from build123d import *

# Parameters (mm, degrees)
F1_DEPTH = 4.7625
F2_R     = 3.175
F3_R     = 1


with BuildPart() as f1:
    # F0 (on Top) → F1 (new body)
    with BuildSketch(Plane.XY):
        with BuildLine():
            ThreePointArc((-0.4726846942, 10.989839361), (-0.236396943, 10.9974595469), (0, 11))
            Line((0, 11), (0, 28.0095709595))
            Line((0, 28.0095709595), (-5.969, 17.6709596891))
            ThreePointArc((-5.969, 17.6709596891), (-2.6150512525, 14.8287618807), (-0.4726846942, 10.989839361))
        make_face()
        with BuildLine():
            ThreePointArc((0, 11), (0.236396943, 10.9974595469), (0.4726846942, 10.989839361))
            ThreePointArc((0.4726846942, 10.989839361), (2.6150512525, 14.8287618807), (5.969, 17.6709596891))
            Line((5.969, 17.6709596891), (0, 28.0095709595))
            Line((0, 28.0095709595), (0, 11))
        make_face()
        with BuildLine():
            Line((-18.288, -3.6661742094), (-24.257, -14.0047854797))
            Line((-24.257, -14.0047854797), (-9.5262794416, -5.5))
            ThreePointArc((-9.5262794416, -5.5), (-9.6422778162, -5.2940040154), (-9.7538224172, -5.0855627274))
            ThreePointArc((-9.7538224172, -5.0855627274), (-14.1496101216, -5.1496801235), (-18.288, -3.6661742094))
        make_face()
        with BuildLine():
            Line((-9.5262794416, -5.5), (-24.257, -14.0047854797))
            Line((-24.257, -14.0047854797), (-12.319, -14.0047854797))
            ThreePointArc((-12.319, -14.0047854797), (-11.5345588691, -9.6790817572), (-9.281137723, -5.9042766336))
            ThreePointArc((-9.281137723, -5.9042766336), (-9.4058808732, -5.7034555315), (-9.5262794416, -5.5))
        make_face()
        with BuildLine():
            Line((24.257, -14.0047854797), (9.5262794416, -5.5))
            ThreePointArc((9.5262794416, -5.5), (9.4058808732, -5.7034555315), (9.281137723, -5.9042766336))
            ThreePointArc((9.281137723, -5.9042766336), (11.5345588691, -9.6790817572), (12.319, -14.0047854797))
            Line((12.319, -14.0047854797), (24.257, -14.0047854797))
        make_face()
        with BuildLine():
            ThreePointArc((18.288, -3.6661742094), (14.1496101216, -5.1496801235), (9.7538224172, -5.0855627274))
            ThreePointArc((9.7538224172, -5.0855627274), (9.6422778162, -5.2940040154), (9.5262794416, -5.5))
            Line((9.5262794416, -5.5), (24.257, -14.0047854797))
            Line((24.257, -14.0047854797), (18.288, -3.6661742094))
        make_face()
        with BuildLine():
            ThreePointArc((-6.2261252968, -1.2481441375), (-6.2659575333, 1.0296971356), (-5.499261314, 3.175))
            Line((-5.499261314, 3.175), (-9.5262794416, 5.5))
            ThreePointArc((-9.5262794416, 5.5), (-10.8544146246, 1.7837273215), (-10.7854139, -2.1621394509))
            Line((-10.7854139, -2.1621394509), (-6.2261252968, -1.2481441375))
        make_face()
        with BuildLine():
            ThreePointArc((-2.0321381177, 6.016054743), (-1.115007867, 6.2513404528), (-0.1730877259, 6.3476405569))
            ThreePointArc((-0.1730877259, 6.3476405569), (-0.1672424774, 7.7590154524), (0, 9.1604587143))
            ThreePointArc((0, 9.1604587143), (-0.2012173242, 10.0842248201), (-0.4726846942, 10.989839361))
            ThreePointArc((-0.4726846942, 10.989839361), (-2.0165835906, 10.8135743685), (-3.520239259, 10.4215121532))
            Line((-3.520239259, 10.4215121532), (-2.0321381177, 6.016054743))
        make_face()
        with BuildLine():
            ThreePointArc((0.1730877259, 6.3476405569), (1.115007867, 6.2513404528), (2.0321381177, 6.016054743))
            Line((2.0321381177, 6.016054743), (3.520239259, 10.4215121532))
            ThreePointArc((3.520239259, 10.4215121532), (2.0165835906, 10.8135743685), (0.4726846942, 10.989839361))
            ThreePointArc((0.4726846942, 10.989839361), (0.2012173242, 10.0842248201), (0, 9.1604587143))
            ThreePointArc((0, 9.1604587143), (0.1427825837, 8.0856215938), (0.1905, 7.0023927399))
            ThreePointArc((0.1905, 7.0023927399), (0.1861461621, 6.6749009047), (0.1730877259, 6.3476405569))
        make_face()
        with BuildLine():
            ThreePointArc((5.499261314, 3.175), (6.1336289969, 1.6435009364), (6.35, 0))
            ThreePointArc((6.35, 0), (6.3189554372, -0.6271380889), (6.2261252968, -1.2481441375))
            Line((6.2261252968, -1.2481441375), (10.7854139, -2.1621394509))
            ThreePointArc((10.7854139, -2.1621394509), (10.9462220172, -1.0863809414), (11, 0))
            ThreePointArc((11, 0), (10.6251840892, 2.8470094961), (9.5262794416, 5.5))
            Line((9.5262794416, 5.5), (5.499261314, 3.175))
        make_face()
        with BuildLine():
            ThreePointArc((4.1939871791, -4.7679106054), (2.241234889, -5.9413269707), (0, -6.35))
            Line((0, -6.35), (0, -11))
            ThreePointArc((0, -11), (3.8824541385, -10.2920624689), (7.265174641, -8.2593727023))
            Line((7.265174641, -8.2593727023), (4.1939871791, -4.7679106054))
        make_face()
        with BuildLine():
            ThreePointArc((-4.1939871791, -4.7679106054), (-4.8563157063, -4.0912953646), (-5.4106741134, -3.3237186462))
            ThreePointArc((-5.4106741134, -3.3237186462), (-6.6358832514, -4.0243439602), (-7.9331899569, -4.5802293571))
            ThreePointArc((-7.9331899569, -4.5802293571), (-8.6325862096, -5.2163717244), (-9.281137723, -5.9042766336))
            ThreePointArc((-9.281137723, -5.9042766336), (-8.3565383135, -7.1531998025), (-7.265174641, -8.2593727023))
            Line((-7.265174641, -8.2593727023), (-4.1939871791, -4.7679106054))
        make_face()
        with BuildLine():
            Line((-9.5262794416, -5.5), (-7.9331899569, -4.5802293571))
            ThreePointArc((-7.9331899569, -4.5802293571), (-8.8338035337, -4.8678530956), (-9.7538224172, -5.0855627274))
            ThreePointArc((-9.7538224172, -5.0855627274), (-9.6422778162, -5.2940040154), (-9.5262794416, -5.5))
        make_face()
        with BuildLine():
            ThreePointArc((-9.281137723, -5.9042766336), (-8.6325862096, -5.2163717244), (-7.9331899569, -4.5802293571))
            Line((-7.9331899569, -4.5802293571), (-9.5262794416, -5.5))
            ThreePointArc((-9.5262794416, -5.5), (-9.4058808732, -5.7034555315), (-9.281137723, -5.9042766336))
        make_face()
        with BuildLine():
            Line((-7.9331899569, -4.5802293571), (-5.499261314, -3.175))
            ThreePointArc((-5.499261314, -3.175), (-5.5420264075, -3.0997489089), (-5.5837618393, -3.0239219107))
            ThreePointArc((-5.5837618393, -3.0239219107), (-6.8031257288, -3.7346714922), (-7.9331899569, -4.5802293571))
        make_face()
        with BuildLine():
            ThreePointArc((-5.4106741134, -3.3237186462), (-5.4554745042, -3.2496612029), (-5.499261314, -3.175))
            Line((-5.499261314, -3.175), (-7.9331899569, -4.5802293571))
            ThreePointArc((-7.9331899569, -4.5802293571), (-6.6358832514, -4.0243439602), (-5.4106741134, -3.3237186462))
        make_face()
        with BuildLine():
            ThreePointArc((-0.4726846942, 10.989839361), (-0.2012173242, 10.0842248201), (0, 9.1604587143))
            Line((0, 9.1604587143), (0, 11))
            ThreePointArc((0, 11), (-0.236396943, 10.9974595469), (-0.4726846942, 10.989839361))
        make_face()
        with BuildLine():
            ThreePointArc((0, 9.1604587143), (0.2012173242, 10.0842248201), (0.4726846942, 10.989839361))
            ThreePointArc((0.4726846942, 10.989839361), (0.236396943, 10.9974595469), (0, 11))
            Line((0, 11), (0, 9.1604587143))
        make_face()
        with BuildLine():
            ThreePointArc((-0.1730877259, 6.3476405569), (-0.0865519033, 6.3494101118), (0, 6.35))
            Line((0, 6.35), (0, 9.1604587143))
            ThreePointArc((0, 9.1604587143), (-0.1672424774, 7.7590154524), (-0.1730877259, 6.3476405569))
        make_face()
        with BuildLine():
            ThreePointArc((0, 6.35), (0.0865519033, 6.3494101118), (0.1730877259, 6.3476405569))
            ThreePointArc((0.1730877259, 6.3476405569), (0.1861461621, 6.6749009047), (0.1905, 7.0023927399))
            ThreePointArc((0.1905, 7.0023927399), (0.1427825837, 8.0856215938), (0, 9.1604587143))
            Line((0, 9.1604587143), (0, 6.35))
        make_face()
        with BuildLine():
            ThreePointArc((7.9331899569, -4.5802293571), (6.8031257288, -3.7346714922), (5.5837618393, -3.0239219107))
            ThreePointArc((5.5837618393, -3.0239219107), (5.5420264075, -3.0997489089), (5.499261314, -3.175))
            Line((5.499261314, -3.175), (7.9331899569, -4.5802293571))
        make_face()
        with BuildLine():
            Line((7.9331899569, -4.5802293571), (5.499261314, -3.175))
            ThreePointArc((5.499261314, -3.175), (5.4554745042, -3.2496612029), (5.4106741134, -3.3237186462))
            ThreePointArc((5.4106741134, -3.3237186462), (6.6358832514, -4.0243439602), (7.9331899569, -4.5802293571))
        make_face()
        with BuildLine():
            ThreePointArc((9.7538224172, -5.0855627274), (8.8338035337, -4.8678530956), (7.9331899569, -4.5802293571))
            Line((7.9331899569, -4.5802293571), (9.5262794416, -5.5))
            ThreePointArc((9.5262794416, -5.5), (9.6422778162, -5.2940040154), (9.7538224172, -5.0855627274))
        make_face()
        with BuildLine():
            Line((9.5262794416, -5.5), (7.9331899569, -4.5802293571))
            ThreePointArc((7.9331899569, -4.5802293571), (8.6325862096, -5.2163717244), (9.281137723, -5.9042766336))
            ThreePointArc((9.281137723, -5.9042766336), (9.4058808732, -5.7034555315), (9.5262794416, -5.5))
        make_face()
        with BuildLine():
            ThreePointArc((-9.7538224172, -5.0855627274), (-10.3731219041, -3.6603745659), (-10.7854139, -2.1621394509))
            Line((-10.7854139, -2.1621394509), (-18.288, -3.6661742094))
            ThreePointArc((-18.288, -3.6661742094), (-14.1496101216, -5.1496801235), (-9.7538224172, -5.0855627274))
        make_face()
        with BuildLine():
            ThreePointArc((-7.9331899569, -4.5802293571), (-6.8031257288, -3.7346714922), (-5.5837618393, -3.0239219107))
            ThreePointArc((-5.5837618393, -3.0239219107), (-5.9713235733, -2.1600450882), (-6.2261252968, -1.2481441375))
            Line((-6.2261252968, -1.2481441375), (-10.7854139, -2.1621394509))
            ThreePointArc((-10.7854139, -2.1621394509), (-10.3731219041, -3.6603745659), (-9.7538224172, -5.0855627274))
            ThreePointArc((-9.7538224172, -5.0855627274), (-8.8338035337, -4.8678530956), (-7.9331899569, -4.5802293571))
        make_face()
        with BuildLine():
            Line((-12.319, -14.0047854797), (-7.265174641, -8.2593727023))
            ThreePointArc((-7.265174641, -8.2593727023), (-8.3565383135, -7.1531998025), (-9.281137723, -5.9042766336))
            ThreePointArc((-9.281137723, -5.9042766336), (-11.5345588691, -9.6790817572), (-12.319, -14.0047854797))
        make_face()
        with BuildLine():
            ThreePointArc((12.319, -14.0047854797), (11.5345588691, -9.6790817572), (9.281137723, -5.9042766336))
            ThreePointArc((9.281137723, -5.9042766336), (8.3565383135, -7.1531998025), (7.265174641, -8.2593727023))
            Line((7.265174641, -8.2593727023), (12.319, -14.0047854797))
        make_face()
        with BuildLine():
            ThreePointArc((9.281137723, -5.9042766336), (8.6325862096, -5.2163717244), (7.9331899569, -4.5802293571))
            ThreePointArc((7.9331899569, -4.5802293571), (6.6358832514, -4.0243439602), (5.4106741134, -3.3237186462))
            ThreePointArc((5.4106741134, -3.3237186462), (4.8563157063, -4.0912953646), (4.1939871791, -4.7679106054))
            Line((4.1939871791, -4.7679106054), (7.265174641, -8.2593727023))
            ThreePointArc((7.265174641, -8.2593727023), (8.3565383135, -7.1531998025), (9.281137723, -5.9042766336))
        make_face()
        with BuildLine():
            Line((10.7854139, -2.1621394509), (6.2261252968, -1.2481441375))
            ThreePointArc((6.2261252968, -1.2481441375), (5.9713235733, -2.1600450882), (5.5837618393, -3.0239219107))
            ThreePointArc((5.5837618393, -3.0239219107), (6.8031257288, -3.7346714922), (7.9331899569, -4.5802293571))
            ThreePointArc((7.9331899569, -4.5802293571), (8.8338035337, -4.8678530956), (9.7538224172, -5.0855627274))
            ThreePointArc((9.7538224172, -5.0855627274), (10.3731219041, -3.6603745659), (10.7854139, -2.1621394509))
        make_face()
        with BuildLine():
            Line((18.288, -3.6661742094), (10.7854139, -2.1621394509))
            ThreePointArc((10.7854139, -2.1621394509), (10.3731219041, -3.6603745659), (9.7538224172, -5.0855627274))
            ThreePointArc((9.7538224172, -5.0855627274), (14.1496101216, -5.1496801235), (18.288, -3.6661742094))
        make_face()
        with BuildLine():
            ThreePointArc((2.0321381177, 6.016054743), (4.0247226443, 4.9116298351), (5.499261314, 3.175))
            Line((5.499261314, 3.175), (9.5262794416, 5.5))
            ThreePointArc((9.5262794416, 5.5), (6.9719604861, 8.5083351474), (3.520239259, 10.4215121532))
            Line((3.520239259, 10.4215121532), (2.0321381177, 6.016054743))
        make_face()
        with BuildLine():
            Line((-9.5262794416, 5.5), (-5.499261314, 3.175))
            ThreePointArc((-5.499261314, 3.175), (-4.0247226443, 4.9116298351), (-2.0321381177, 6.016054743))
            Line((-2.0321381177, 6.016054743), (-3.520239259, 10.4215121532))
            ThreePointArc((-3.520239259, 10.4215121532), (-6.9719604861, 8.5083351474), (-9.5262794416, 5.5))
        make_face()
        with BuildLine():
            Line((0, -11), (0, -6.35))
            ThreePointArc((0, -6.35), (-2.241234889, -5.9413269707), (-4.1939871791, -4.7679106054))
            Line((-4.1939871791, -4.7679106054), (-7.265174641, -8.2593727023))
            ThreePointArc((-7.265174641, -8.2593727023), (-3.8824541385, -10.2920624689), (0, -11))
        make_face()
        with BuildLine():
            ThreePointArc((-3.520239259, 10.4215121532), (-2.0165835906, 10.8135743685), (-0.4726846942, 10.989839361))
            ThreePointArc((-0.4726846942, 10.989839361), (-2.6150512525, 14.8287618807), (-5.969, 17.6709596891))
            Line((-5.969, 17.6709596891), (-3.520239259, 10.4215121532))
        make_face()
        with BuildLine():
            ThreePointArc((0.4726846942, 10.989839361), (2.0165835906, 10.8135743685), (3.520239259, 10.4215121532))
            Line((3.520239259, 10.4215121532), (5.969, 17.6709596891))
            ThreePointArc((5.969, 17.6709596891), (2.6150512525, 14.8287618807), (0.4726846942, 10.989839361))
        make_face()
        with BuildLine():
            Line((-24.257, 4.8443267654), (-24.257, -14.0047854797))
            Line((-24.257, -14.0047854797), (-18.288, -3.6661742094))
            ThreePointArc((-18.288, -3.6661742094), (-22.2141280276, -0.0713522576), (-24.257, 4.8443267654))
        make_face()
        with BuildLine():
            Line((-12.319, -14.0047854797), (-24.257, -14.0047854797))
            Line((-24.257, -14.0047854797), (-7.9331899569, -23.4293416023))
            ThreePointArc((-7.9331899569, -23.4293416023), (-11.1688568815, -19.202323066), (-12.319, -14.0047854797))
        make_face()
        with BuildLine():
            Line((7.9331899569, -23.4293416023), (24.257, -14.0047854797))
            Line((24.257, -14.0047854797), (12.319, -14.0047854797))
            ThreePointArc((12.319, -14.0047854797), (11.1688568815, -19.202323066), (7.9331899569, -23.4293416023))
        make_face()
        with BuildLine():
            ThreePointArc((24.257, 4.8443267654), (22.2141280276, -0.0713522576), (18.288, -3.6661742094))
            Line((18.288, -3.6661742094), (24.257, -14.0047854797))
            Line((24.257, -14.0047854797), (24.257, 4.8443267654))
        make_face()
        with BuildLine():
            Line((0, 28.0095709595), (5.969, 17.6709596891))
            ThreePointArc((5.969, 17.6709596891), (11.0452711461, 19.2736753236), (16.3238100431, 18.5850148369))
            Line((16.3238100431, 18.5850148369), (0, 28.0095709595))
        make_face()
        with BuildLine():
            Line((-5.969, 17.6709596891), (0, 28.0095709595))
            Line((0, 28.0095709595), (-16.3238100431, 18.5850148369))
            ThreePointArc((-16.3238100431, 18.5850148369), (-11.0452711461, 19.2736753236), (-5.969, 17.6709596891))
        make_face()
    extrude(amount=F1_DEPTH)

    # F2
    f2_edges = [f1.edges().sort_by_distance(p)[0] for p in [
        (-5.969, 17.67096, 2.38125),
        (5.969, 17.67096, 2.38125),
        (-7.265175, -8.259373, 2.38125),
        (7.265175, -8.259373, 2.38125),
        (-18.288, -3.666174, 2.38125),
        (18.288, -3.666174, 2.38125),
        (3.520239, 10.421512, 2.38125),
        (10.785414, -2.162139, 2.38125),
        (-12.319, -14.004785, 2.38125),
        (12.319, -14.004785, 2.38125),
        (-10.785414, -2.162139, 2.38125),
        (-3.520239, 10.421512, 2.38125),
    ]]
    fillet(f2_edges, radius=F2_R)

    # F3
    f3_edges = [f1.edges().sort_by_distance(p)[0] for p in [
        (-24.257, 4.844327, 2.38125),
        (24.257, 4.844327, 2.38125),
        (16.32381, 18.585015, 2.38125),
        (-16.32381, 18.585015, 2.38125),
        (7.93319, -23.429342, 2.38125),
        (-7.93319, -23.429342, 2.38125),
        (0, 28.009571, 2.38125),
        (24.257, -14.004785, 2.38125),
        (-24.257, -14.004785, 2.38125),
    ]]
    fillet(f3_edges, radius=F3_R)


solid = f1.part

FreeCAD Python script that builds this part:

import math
import FreeCAD as App
import Part
import Sketcher
Q = App.Units.Quantity


def edges_at(feature, points):
    """Names of the edges that pass closest to the given points."""
    edges = feature.Shape.Edges
    near = lambda p: min(range(len(edges)), key=lambda i: edges[i].distToShape(Part.Vertex(*p))[0])
    return sorted({f"Edge{near(p) + 1}" for p in points})

doc = App.newDocument("Part")
params = doc.addObject("Spreadsheet::Sheet", "Params")
for row, (alias, value) in enumerate([
    ("sketch1_radius", "0.25 in"),
    ("sketch1_radius2", "0.485 in"),
    ("pad1_length", "0.1875 in"),
    ("fillet_radius", "0.125 in"),
    ("fillet2_radius", "1 mm"),
], start=1):
    params.set(f"A{row}", alias)
    params.set(f"B{row}", "=" + value)
    params.setAlias(f"B{row}", alias)

body = doc.addObject("PartDesign::Body", "Body")

# Sketch on XY plane
sketch1 = body.newObject("Sketcher::SketchObject", "Sketch")
sketch1.AttachmentSupport = (doc.getObject("XY_Plane"), [""])
sketch1.MapMode = "FlatFace"
sketch1.addGeometry(Part.LineSegment(App.Vector(-5.97, 17.67, 0), App.Vector(-3.52, 10.42, 0)), False)
sketch1.addGeometry(Part.ArcOfCircle(Part.Circle(App.Vector(0, 0, 0), App.Vector(0, 0, 1), 11), math.radians(109), math.radians(150)), False)
sketch1.addGeometry(Part.ArcOfCircle(Part.Circle(App.Vector(0, 0, 0), App.Vector(0, 0, 1), 11), math.radians(150), math.radians(191)), False)
sketch1.addGeometry(Part.LineSegment(App.Vector(-10.79, -2.16, 0), App.Vector(-18.29, -3.67, 0)), False)
sketch1.addGeometry(Part.ArcOfCircle(Part.Circle(App.Vector(-12.13, 7, 0), App.Vector(0, 0, 1), 12.32), math.radians(-170), math.radians(-120)), False)
sketch1.addGeometry(Part.LineSegment(App.Vector(-24.26, 4.84, 0), App.Vector(-24.26, -14, 0)), False)
sketch1.addGeometry(Part.LineSegment(App.Vector(-24.26, -14, 0), App.Vector(-7.93, -23.43, 0)), False)
sketch1.addGeometry(Part.ArcOfCircle(Part.Circle(App.Vector(0, -14, 0), App.Vector(0, 0, 1), 12.32), math.radians(180), math.radians(230)), False)
sketch1.addGeometry(Part.LineSegment(App.Vector(-12.32, -14, 0), App.Vector(-7.27, -8.26, 0)), False)
sketch1.addGeometry(Part.ArcOfCircle(Part.Circle(App.Vector(0, 0, 0), App.Vector(0, 0, 1), 11), math.radians(-131), math.radians(-90)), False)
sketch1.addGeometry(Part.ArcOfCircle(Part.Circle(App.Vector(0, 0, 0), App.Vector(0, 0, 1), 11), math.radians(-90), math.radians(-49)), False)
sketch1.addGeometry(Part.LineSegment(App.Vector(7.27, -8.26, 0), App.Vector(12.32, -14, 0)), False)
sketch1.addGeometry(Part.ArcOfCircle(Part.Circle(App.Vector(0, -14, 0), App.Vector(0, 0, 1), 12.32), math.radians(-50), math.radians(0)), False)
sketch1.addGeometry(Part.LineSegment(App.Vector(7.93, -23.43, 0), App.Vector(24.26, -14, 0)), False)
sketch1.addGeometry(Part.LineSegment(App.Vector(24.26, -14, 0), App.Vector(24.26, 4.84, 0)), False)
sketch1.addGeometry(Part.ArcOfCircle(Part.Circle(App.Vector(12.13, 7, 0), App.Vector(0, 0, 1), 12.32), math.radians(-60), math.radians(-10)), False)
sketch1.addGeometry(Part.LineSegment(App.Vector(18.29, -3.67, 0), App.Vector(10.79, -2.16, 0)), False)
sketch1.addGeometry(Part.ArcOfCircle(Part.Circle(App.Vector(0, 0, 0), App.Vector(0, 0, 1), 11), math.radians(-11.34), math.radians(0)), False)
sketch1.addGeometry(Part.ArcOfCircle(Part.Circle(App.Vector(0, 0, 0), App.Vector(0, 0, 1), 11), math.radians(0), math.radians(30)), False)
sketch1.addGeometry(Part.ArcOfCircle(Part.Circle(App.Vector(0, 0, 0), App.Vector(0, 0, 1), 11), math.radians(30), math.radians(71)), False)
sketch1.addGeometry(Part.LineSegment(App.Vector(3.52, 10.42, 0), App.Vector(5.97, 17.67, 0)), False)
sketch1.addGeometry(Part.ArcOfCircle(Part.Circle(App.Vector(12.13, 7, 0), App.Vector(0, 0, 1), 12.32), math.radians(70), math.radians(120)), False)
sketch1.addGeometry(Part.LineSegment(App.Vector(16.32, 18.59, 0), App.Vector(0, 28.01, 0)), False)
sketch1.addGeometry(Part.LineSegment(App.Vector(0, 28.01, 0), App.Vector(-16.32, 18.59, 0)), False)
sketch1.addGeometry(Part.ArcOfCircle(Part.Circle(App.Vector(-12.13, 7, 0), App.Vector(0, 0, 1), 12.32), math.radians(60), math.radians(110)), False)
sketch1.addGeometry(Part.ArcOfCircle(Part.Circle(App.Vector(0, 0, 0), App.Vector(0, 0, 1), 6.35), math.radians(-148.44), math.radians(-131.34)), False)
sketch1.addGeometry(Part.ArcOfCircle(Part.Circle(App.Vector(0, 0, 0), App.Vector(0, 0, 1), 6.35), math.radians(-150), math.radians(-148.44)), False)
sketch1.addGeometry(Part.ArcOfCircle(Part.Circle(App.Vector(0, 0, 0), App.Vector(0, 0, 1), 6.35), math.radians(-151.56), math.radians(-150)), False)
sketch1.addGeometry(Part.ArcOfCircle(Part.Circle(App.Vector(0, 0, 0), App.Vector(0, 0, 1), 6.35), math.radians(-168.66), math.radians(-151.56)), False)
sketch1.addGeometry(Part.ArcOfCircle(Part.Circle(App.Vector(0, 0, 0), App.Vector(0, 0, 1), 6.35), math.radians(150), math.radians(191)), False)
sketch1.addGeometry(Part.ArcOfCircle(Part.Circle(App.Vector(0, 0, 0), App.Vector(0, 0, 1), 6.35), math.radians(109), math.radians(150)), False)
sketch1.addGeometry(Part.ArcOfCircle(Part.Circle(App.Vector(0, 0, 0), App.Vector(0, 0, 1), 6.35), math.radians(91.56), math.radians(108.66)), False)
sketch1.addGeometry(Part.ArcOfCircle(Part.Circle(App.Vector(0, 0, 0), App.Vector(0, 0, 1), 6.35), math.radians(90), math.radians(91.56)), False)
sketch1.addGeometry(Part.ArcOfCircle(Part.Circle(App.Vector(0, 0, 0), App.Vector(0, 0, 1), 6.35), math.radians(88.44), math.radians(90)), False)
sketch1.addGeometry(Part.ArcOfCircle(Part.Circle(App.Vector(0, 0, 0), App.Vector(0, 0, 1), 6.35), math.radians(71.34), math.radians(88.44)), False)
sketch1.addGeometry(Part.ArcOfCircle(Part.Circle(App.Vector(0, 0, 0), App.Vector(0, 0, 1), 6.35), math.radians(30), math.radians(71)), False)
sketch1.addGeometry(Part.ArcOfCircle(Part.Circle(App.Vector(0, 0, 0), App.Vector(0, 0, 1), 6.35), math.radians(0), math.radians(30)), False)
sketch1.addGeometry(Part.ArcOfCircle(Part.Circle(App.Vector(0, 0, 0), App.Vector(0, 0, 1), 6.35), math.radians(-11.34), math.radians(0)), False)
sketch1.addGeometry(Part.ArcOfCircle(Part.Circle(App.Vector(0, 0, 0), App.Vector(0, 0, 1), 6.35), math.radians(-28.44), math.radians(-11.34)), False)
sketch1.addGeometry(Part.ArcOfCircle(Part.Circle(App.Vector(0, 0, 0), App.Vector(0, 0, 1), 6.35), math.radians(-30), math.radians(-28.44)), False)
sketch1.addGeometry(Part.ArcOfCircle(Part.Circle(App.Vector(0, 0, 0), App.Vector(0, 0, 1), 6.35), math.radians(-31.56), math.radians(-30)), False)
sketch1.addGeometry(Part.ArcOfCircle(Part.Circle(App.Vector(0, 0, 0), App.Vector(0, 0, 1), 6.35), math.radians(-48.66), math.radians(-31.56)), False)
sketch1.addGeometry(Part.ArcOfCircle(Part.Circle(App.Vector(0, 0, 0), App.Vector(0, 0, 1), 6.35), math.radians(-90), math.radians(-49)), False)
sketch1.addGeometry(Part.ArcOfCircle(Part.Circle(App.Vector(0, 0, 0), App.Vector(0, 0, 1), 6.35), math.radians(-131), math.radians(-90)), False)
sketch1.addConstraint(Sketcher.Constraint("Coincident", 0, 2, 1, 1))
sketch1.addConstraint(Sketcher.Constraint("Tangent", 1, 2, 2, 1))
sketch1.addConstraint(Sketcher.Constraint("Coincident", 2, 2, 3, 1))
sketch1.addConstraint(Sketcher.Constraint("Coincident", 3, 2, 4, 2))
sketch1.addConstraint(Sketcher.Constraint("Coincident", 4, 1, 5, 1))
sketch1.addConstraint(Sketcher.Constraint("Coincident", 5, 2, 6, 1))
sketch1.addConstraint(Sketcher.Constraint("Coincident", 6, 2, 7, 2))
sketch1.addConstraint(Sketcher.Constraint("Coincident", 7, 1, 8, 1))
sketch1.addConstraint(Sketcher.Constraint("Coincident", 8, 2, 9, 1))
sketch1.addConstraint(Sketcher.Constraint("Tangent", 9, 2, 10, 1))
sketch1.addConstraint(Sketcher.Constraint("Coincident", 10, 2, 11, 1))
sketch1.addConstraint(Sketcher.Constraint("Coincident", 11, 2, 12, 2))
sketch1.addConstraint(Sketcher.Constraint("Coincident", 12, 1, 13, 1))
sketch1.addConstraint(Sketcher.Constraint("Coincident", 13, 2, 14, 1))
sketch1.addConstraint(Sketcher.Constraint("Coincident", 14, 2, 15, 2))
sketch1.addConstraint(Sketcher.Constraint("Coincident", 15, 1, 16, 1))
sketch1.addConstraint(Sketcher.Constraint("Coincident", 16, 2, 17, 1))
sketch1.addConstraint(Sketcher.Constraint("Tangent", 17, 2, 18, 1))
sketch1.addConstraint(Sketcher.Constraint("Tangent", 18, 2, 19, 1))
sketch1.addConstraint(Sketcher.Constraint("Coincident", 19, 2, 20, 1))
sketch1.addConstraint(Sketcher.Constraint("Coincident", 20, 2, 21, 2))
sketch1.addConstraint(Sketcher.Constraint("Coincident", 21, 1, 22, 1))
sketch1.addConstraint(Sketcher.Constraint("Coincident", 22, 2, 23, 1))
sketch1.addConstraint(Sketcher.Constraint("Coincident", 23, 2, 24, 2))
sketch1.addConstraint(Sketcher.Constraint("Coincident", 24, 1, 0, 1))
sketch1.addConstraint(Sketcher.Constraint("Tangent", 25, 1, 26, 2))
sketch1.addConstraint(Sketcher.Constraint("Tangent", 26, 1, 27, 2))
sketch1.addConstraint(Sketcher.Constraint("Tangent", 27, 1, 28, 2))
sketch1.addConstraint(Sketcher.Constraint("Tangent", 28, 1, 29, 2))
sketch1.addConstraint(Sketcher.Constraint("Tangent", 29, 1, 30, 2))
sketch1.addConstraint(Sketcher.Constraint("Tangent", 30, 1, 31, 2))
sketch1.addConstraint(Sketcher.Constraint("Tangent", 31, 1, 32, 2))
sketch1.addConstraint(Sketcher.Constraint("Tangent", 32, 1, 33, 2))
sketch1.addConstraint(Sketcher.Constraint("Tangent", 33, 1, 34, 2))
sketch1.addConstraint(Sketcher.Constraint("Tangent", 34, 1, 35, 2))
sketch1.addConstraint(Sketcher.Constraint("Tangent", 35, 1, 36, 2))
sketch1.addConstraint(Sketcher.Constraint("Tangent", 36, 1, 37, 2))
sketch1.addConstraint(Sketcher.Constraint("Tangent", 37, 1, 38, 2))
sketch1.addConstraint(Sketcher.Constraint("Tangent", 38, 1, 39, 2))
sketch1.addConstraint(Sketcher.Constraint("Tangent", 39, 1, 40, 2))
sketch1.addConstraint(Sketcher.Constraint("Tangent", 40, 1, 41, 2))
sketch1.addConstraint(Sketcher.Constraint("Tangent", 41, 1, 42, 2))
sketch1.addConstraint(Sketcher.Constraint("Tangent", 42, 1, 43, 2))
sketch1.addConstraint(Sketcher.Constraint("Tangent", 43, 1, 25, 2))
sketch1.addConstraint(Sketcher.Constraint("Vertical", 5))
sketch1.addConstraint(Sketcher.Constraint("Vertical", 14))
sketch1.addConstraint(Sketcher.Constraint("Coincident", 1, 3, -1, 1))
sketch1.addConstraint(Sketcher.Constraint("Coincident", 9, 3, -1, 1))
sketch1.addConstraint(Sketcher.Constraint("Coincident", 17, 3, -1, 1))
sketch1.addConstraint(Sketcher.Constraint("Coincident", 19, 3, -1, 1))
sketch1.addConstraint(Sketcher.Constraint("Coincident", 25, 3, -1, 1))
sketch1.addConstraint(Sketcher.Constraint("Coincident", 27, 3, -1, 1))
sketch1.addConstraint(Sketcher.Constraint("Coincident", 29, 3, -1, 1))
sketch1.addConstraint(Sketcher.Constraint("Coincident", 31, 3, -1, 1))
sketch1.addConstraint(Sketcher.Constraint("Coincident", 33, 3, -1, 1))
sketch1.addConstraint(Sketcher.Constraint("Coincident", 35, 3, -1, 1))
sketch1.addConstraint(Sketcher.Constraint("Coincident", 37, 3, -1, 1))
sketch1.addConstraint(Sketcher.Constraint("Coincident", 39, 3, -1, 1))
sketch1.addConstraint(Sketcher.Constraint("Coincident", 41, 3, -1, 1))
sketch1.addConstraint(Sketcher.Constraint("Coincident", 12, 3, 7, 3))
sketch1.addConstraint(Sketcher.Constraint("Coincident", 21, 3, 15, 3))
sketch1.addConstraint(Sketcher.Constraint("Coincident", 24, 3, 4, 3))
sketch1.addConstraint(Sketcher.Constraint("Equal", 1, 2))
sketch1.addConstraint(Sketcher.Constraint("Equal", 4, 7))
sketch1.addConstraint(Sketcher.Constraint("Equal", 2, 9))
sketch1.addConstraint(Sketcher.Constraint("Equal", 9, 10))
sketch1.addConstraint(Sketcher.Constraint("Equal", 7, 12))
sketch1.addConstraint(Sketcher.Constraint("Equal", 12, 15))
sketch1.addConstraint(Sketcher.Constraint("Equal", 10, 17))
sketch1.addConstraint(Sketcher.Constraint("Equal", 15, 21))
sketch1.addConstraint(Sketcher.Constraint("Equal", 21, 24))
sketch1.addConstraint(Sketcher.Constraint("Symmetric", 4, 3, 15, 3, -2))
sketch1.addConstraint(Sketcher.Constraint("Symmetric", 7, 1, 11, 2, -2))
sketch1.addConstraint(Sketcher.Constraint("Symmetric", 5, 2, 13, 2, -2))
sketch1.addConstraint(Sketcher.Constraint("PointOnObject", 9, 2, -2))
sketch1.addConstraint(Sketcher.Constraint("PointOnObject", 17, 2, -1))
sketch1.addConstraint(Sketcher.Constraint("PointOnObject", 22, 2, -2))
sketch1.addConstraint(Sketcher.Constraint("PointOnObject", 32, 1, -2))
sketch1.addConstraint(Sketcher.Constraint("PointOnObject", 36, 1, -1))
sketch1.addConstraint(Sketcher.Constraint("PointOnObject", 42, 1, -2))
sketch1.addConstraint(Sketcher.Constraint("Parallel", 6, 22))
sketch1.addConstraint(Sketcher.Constraint("Parallel", 13, 23))
sketch1.addConstraint(Sketcher.Constraint("Horizontal", 12, 3, 5, 2))
sketch1.addConstraint(Sketcher.Constraint("Horizontal", 5, 2, 7, 1))
sketch1.addConstraint(Sketcher.Constraint("Horizontal", 8, 2, 10, 2))
sketch1.addConstraint(Sketcher.Constraint("Horizontal", 6, 2, 12, 1))
sketch1.addConstraint(Sketcher.Constraint("Horizontal", 3, 2, 15, 1))
sketch1.addConstraint(Sketcher.Constraint("Horizontal", 2, 2, 16, 2))
sketch1.addConstraint(Sketcher.Constraint("Horizontal", 1, 2, 18, 2))
sketch1.addConstraint(Sketcher.Constraint("Horizontal", 0, 2, 19, 2))
sketch1.addConstraint(Sketcher.Constraint("Horizontal", 20, 2, 24, 1))
sketch1.addConstraint(Sketcher.Constraint("Horizontal", 31, 1, 33, 1))
sketch1.addConstraint(Sketcher.Constraint("Horizontal", 30, 1, 34, 1))
sketch1.addConstraint(Sketcher.Constraint("Horizontal", 29, 1, 35, 1))
sketch1.addConstraint(Sketcher.Constraint("Horizontal", 28, 1, 37, 1))
sketch1.addConstraint(Sketcher.Constraint("Horizontal", 27, 1, 38, 1))
sketch1.addConstraint(Sketcher.Constraint("Horizontal", 26, 1, 39, 1))
sketch1.addConstraint(Sketcher.Constraint("Horizontal", 25, 1, 40, 1))
sketch1.addConstraint(Sketcher.Constraint("Horizontal", 41, 1, 43, 1))
sketch1.addConstraint(Sketcher.Constraint("Vertical", 26, 1, 29, 1))
sketch1.addConstraint(Sketcher.Constraint("Equal", 0, 3))
sketch1.addConstraint(Sketcher.Constraint("Equal", 3, 8))
sketch1.addConstraint(Sketcher.Constraint("Equal", 13, 22))
sketch1.addConstraint(Sketcher.Constraint("Radius", 25, Q("0.25 in")))
sketch1.addConstraint(Sketcher.Constraint("Angle", 6, Q("-30 deg")))
sketch1.addConstraint(Sketcher.Constraint("Radius", 4, Q("0.485 in")))
sketch1.addConstraint(Sketcher.Constraint("DistanceX", 3, 2, -1, 1, Q("0.72 in")))
sketch1.addConstraint(Sketcher.Constraint("Radius", 1, 11.0))
sketch1.addConstraint(Sketcher.Constraint("DistanceX", 4, 1, -1, 1, Q("0.955 in")))
sketch1.addConstraint(Sketcher.Constraint("DistanceX", -1, 1, 20, 2, Q("0.235 in")))
sketch1.addConstraint(Sketcher.Constraint("DistanceY", 26, 1, -1, 1, Q("0.125 in")))
sketch1.addConstraint(Sketcher.Constraint("DistanceX", 4, 3, -1, 1, Q("0.4775 in")))
sketch1.addConstraint(Sketcher.Constraint("DistanceY", -1, 1, 1, 2, 5.5))
sketch1.addConstraint(Sketcher.Constraint("DistanceX", 0, 2, -1, 1, 3.520239))
sketch1.addConstraint(Sketcher.Constraint("DistanceY", 2, 2, -1, 1, 2.162139))
sketch1.addConstraint(Sketcher.Constraint("DistanceY", 25, 1, -1, 1, 3.323719))
sketch1.addConstraint(Sketcher.Constraint("DistanceX", 27, 1, -1, 1, 5.583762))
sketch1.addConstraint(Sketcher.Constraint("DistanceX", 30, 1, -1, 1, 2.032138))
sketch1.addConstraint(Sketcher.Constraint("DistanceY", -1, 1, 31, 1, 6.347641))
sketch1.addConstraint(Sketcher.Constraint("DistanceY", 41, 1, -1, 1, 4.767911))
sketch1.addConstraint(Sketcher.Constraint("DistanceX", 8, 2, -1, 1, 7.265175))
sketch1.addConstraint(Sketcher.Constraint("DistanceX", 28, 1, -1, 1, 6.226125))
sketch1.setExpression("Constraints[103]", "Params.sketch1_radius")
sketch1.setExpression("Constraints[105]", "Params.sketch1_radius2")
pad1 = body.newObject("PartDesign::Pad", "Pad")
pad1.Profile = sketch1
pad1.setExpression("Length", "Params.pad1_length")
doc.recompute()

fillet = body.newObject("PartDesign::Fillet", "Fillet")
fillet.Base = (pad1, edges_at(pad1, [
    (-5.969, 17.671, 2.381),
    (5.969, 17.671, 2.381),
    (-7.265, -8.259, 2.381),
    (7.265, -8.259, 2.381),
    (-18.288, -3.666, 2.381),
    (18.288, -3.666, 2.381),
    (3.52, 10.422, 2.381),
    (10.785, -2.162, 2.381),
    (-12.319, -14.005, 2.381),
    (12.319, -14.005, 2.381),
    (-10.785, -2.162, 2.381),
    (-3.52, 10.422, 2.381),
]))
fillet.setExpression("Radius", "Params.fillet_radius")
doc.recompute()

fillet2 = body.newObject("PartDesign::Fillet", "Fillet001")
fillet2.Base = (fillet, edges_at(fillet, [
    (-24.257, 4.844, 2.381),
    (24.257, 4.844, 2.381),
    (16.324, 18.585, 2.381),
    (-16.324, 18.585, 2.381),
    (7.933, -23.429, 2.381),
    (-7.933, -23.429, 2.381),
    (0, 28.01, 2.381),
    (24.257, -14.005, 2.381),
    (-24.257, -14.005, 2.381),
]))
fillet2.setExpression("Radius", "Params.fillet2_radius")

doc.recompute()
